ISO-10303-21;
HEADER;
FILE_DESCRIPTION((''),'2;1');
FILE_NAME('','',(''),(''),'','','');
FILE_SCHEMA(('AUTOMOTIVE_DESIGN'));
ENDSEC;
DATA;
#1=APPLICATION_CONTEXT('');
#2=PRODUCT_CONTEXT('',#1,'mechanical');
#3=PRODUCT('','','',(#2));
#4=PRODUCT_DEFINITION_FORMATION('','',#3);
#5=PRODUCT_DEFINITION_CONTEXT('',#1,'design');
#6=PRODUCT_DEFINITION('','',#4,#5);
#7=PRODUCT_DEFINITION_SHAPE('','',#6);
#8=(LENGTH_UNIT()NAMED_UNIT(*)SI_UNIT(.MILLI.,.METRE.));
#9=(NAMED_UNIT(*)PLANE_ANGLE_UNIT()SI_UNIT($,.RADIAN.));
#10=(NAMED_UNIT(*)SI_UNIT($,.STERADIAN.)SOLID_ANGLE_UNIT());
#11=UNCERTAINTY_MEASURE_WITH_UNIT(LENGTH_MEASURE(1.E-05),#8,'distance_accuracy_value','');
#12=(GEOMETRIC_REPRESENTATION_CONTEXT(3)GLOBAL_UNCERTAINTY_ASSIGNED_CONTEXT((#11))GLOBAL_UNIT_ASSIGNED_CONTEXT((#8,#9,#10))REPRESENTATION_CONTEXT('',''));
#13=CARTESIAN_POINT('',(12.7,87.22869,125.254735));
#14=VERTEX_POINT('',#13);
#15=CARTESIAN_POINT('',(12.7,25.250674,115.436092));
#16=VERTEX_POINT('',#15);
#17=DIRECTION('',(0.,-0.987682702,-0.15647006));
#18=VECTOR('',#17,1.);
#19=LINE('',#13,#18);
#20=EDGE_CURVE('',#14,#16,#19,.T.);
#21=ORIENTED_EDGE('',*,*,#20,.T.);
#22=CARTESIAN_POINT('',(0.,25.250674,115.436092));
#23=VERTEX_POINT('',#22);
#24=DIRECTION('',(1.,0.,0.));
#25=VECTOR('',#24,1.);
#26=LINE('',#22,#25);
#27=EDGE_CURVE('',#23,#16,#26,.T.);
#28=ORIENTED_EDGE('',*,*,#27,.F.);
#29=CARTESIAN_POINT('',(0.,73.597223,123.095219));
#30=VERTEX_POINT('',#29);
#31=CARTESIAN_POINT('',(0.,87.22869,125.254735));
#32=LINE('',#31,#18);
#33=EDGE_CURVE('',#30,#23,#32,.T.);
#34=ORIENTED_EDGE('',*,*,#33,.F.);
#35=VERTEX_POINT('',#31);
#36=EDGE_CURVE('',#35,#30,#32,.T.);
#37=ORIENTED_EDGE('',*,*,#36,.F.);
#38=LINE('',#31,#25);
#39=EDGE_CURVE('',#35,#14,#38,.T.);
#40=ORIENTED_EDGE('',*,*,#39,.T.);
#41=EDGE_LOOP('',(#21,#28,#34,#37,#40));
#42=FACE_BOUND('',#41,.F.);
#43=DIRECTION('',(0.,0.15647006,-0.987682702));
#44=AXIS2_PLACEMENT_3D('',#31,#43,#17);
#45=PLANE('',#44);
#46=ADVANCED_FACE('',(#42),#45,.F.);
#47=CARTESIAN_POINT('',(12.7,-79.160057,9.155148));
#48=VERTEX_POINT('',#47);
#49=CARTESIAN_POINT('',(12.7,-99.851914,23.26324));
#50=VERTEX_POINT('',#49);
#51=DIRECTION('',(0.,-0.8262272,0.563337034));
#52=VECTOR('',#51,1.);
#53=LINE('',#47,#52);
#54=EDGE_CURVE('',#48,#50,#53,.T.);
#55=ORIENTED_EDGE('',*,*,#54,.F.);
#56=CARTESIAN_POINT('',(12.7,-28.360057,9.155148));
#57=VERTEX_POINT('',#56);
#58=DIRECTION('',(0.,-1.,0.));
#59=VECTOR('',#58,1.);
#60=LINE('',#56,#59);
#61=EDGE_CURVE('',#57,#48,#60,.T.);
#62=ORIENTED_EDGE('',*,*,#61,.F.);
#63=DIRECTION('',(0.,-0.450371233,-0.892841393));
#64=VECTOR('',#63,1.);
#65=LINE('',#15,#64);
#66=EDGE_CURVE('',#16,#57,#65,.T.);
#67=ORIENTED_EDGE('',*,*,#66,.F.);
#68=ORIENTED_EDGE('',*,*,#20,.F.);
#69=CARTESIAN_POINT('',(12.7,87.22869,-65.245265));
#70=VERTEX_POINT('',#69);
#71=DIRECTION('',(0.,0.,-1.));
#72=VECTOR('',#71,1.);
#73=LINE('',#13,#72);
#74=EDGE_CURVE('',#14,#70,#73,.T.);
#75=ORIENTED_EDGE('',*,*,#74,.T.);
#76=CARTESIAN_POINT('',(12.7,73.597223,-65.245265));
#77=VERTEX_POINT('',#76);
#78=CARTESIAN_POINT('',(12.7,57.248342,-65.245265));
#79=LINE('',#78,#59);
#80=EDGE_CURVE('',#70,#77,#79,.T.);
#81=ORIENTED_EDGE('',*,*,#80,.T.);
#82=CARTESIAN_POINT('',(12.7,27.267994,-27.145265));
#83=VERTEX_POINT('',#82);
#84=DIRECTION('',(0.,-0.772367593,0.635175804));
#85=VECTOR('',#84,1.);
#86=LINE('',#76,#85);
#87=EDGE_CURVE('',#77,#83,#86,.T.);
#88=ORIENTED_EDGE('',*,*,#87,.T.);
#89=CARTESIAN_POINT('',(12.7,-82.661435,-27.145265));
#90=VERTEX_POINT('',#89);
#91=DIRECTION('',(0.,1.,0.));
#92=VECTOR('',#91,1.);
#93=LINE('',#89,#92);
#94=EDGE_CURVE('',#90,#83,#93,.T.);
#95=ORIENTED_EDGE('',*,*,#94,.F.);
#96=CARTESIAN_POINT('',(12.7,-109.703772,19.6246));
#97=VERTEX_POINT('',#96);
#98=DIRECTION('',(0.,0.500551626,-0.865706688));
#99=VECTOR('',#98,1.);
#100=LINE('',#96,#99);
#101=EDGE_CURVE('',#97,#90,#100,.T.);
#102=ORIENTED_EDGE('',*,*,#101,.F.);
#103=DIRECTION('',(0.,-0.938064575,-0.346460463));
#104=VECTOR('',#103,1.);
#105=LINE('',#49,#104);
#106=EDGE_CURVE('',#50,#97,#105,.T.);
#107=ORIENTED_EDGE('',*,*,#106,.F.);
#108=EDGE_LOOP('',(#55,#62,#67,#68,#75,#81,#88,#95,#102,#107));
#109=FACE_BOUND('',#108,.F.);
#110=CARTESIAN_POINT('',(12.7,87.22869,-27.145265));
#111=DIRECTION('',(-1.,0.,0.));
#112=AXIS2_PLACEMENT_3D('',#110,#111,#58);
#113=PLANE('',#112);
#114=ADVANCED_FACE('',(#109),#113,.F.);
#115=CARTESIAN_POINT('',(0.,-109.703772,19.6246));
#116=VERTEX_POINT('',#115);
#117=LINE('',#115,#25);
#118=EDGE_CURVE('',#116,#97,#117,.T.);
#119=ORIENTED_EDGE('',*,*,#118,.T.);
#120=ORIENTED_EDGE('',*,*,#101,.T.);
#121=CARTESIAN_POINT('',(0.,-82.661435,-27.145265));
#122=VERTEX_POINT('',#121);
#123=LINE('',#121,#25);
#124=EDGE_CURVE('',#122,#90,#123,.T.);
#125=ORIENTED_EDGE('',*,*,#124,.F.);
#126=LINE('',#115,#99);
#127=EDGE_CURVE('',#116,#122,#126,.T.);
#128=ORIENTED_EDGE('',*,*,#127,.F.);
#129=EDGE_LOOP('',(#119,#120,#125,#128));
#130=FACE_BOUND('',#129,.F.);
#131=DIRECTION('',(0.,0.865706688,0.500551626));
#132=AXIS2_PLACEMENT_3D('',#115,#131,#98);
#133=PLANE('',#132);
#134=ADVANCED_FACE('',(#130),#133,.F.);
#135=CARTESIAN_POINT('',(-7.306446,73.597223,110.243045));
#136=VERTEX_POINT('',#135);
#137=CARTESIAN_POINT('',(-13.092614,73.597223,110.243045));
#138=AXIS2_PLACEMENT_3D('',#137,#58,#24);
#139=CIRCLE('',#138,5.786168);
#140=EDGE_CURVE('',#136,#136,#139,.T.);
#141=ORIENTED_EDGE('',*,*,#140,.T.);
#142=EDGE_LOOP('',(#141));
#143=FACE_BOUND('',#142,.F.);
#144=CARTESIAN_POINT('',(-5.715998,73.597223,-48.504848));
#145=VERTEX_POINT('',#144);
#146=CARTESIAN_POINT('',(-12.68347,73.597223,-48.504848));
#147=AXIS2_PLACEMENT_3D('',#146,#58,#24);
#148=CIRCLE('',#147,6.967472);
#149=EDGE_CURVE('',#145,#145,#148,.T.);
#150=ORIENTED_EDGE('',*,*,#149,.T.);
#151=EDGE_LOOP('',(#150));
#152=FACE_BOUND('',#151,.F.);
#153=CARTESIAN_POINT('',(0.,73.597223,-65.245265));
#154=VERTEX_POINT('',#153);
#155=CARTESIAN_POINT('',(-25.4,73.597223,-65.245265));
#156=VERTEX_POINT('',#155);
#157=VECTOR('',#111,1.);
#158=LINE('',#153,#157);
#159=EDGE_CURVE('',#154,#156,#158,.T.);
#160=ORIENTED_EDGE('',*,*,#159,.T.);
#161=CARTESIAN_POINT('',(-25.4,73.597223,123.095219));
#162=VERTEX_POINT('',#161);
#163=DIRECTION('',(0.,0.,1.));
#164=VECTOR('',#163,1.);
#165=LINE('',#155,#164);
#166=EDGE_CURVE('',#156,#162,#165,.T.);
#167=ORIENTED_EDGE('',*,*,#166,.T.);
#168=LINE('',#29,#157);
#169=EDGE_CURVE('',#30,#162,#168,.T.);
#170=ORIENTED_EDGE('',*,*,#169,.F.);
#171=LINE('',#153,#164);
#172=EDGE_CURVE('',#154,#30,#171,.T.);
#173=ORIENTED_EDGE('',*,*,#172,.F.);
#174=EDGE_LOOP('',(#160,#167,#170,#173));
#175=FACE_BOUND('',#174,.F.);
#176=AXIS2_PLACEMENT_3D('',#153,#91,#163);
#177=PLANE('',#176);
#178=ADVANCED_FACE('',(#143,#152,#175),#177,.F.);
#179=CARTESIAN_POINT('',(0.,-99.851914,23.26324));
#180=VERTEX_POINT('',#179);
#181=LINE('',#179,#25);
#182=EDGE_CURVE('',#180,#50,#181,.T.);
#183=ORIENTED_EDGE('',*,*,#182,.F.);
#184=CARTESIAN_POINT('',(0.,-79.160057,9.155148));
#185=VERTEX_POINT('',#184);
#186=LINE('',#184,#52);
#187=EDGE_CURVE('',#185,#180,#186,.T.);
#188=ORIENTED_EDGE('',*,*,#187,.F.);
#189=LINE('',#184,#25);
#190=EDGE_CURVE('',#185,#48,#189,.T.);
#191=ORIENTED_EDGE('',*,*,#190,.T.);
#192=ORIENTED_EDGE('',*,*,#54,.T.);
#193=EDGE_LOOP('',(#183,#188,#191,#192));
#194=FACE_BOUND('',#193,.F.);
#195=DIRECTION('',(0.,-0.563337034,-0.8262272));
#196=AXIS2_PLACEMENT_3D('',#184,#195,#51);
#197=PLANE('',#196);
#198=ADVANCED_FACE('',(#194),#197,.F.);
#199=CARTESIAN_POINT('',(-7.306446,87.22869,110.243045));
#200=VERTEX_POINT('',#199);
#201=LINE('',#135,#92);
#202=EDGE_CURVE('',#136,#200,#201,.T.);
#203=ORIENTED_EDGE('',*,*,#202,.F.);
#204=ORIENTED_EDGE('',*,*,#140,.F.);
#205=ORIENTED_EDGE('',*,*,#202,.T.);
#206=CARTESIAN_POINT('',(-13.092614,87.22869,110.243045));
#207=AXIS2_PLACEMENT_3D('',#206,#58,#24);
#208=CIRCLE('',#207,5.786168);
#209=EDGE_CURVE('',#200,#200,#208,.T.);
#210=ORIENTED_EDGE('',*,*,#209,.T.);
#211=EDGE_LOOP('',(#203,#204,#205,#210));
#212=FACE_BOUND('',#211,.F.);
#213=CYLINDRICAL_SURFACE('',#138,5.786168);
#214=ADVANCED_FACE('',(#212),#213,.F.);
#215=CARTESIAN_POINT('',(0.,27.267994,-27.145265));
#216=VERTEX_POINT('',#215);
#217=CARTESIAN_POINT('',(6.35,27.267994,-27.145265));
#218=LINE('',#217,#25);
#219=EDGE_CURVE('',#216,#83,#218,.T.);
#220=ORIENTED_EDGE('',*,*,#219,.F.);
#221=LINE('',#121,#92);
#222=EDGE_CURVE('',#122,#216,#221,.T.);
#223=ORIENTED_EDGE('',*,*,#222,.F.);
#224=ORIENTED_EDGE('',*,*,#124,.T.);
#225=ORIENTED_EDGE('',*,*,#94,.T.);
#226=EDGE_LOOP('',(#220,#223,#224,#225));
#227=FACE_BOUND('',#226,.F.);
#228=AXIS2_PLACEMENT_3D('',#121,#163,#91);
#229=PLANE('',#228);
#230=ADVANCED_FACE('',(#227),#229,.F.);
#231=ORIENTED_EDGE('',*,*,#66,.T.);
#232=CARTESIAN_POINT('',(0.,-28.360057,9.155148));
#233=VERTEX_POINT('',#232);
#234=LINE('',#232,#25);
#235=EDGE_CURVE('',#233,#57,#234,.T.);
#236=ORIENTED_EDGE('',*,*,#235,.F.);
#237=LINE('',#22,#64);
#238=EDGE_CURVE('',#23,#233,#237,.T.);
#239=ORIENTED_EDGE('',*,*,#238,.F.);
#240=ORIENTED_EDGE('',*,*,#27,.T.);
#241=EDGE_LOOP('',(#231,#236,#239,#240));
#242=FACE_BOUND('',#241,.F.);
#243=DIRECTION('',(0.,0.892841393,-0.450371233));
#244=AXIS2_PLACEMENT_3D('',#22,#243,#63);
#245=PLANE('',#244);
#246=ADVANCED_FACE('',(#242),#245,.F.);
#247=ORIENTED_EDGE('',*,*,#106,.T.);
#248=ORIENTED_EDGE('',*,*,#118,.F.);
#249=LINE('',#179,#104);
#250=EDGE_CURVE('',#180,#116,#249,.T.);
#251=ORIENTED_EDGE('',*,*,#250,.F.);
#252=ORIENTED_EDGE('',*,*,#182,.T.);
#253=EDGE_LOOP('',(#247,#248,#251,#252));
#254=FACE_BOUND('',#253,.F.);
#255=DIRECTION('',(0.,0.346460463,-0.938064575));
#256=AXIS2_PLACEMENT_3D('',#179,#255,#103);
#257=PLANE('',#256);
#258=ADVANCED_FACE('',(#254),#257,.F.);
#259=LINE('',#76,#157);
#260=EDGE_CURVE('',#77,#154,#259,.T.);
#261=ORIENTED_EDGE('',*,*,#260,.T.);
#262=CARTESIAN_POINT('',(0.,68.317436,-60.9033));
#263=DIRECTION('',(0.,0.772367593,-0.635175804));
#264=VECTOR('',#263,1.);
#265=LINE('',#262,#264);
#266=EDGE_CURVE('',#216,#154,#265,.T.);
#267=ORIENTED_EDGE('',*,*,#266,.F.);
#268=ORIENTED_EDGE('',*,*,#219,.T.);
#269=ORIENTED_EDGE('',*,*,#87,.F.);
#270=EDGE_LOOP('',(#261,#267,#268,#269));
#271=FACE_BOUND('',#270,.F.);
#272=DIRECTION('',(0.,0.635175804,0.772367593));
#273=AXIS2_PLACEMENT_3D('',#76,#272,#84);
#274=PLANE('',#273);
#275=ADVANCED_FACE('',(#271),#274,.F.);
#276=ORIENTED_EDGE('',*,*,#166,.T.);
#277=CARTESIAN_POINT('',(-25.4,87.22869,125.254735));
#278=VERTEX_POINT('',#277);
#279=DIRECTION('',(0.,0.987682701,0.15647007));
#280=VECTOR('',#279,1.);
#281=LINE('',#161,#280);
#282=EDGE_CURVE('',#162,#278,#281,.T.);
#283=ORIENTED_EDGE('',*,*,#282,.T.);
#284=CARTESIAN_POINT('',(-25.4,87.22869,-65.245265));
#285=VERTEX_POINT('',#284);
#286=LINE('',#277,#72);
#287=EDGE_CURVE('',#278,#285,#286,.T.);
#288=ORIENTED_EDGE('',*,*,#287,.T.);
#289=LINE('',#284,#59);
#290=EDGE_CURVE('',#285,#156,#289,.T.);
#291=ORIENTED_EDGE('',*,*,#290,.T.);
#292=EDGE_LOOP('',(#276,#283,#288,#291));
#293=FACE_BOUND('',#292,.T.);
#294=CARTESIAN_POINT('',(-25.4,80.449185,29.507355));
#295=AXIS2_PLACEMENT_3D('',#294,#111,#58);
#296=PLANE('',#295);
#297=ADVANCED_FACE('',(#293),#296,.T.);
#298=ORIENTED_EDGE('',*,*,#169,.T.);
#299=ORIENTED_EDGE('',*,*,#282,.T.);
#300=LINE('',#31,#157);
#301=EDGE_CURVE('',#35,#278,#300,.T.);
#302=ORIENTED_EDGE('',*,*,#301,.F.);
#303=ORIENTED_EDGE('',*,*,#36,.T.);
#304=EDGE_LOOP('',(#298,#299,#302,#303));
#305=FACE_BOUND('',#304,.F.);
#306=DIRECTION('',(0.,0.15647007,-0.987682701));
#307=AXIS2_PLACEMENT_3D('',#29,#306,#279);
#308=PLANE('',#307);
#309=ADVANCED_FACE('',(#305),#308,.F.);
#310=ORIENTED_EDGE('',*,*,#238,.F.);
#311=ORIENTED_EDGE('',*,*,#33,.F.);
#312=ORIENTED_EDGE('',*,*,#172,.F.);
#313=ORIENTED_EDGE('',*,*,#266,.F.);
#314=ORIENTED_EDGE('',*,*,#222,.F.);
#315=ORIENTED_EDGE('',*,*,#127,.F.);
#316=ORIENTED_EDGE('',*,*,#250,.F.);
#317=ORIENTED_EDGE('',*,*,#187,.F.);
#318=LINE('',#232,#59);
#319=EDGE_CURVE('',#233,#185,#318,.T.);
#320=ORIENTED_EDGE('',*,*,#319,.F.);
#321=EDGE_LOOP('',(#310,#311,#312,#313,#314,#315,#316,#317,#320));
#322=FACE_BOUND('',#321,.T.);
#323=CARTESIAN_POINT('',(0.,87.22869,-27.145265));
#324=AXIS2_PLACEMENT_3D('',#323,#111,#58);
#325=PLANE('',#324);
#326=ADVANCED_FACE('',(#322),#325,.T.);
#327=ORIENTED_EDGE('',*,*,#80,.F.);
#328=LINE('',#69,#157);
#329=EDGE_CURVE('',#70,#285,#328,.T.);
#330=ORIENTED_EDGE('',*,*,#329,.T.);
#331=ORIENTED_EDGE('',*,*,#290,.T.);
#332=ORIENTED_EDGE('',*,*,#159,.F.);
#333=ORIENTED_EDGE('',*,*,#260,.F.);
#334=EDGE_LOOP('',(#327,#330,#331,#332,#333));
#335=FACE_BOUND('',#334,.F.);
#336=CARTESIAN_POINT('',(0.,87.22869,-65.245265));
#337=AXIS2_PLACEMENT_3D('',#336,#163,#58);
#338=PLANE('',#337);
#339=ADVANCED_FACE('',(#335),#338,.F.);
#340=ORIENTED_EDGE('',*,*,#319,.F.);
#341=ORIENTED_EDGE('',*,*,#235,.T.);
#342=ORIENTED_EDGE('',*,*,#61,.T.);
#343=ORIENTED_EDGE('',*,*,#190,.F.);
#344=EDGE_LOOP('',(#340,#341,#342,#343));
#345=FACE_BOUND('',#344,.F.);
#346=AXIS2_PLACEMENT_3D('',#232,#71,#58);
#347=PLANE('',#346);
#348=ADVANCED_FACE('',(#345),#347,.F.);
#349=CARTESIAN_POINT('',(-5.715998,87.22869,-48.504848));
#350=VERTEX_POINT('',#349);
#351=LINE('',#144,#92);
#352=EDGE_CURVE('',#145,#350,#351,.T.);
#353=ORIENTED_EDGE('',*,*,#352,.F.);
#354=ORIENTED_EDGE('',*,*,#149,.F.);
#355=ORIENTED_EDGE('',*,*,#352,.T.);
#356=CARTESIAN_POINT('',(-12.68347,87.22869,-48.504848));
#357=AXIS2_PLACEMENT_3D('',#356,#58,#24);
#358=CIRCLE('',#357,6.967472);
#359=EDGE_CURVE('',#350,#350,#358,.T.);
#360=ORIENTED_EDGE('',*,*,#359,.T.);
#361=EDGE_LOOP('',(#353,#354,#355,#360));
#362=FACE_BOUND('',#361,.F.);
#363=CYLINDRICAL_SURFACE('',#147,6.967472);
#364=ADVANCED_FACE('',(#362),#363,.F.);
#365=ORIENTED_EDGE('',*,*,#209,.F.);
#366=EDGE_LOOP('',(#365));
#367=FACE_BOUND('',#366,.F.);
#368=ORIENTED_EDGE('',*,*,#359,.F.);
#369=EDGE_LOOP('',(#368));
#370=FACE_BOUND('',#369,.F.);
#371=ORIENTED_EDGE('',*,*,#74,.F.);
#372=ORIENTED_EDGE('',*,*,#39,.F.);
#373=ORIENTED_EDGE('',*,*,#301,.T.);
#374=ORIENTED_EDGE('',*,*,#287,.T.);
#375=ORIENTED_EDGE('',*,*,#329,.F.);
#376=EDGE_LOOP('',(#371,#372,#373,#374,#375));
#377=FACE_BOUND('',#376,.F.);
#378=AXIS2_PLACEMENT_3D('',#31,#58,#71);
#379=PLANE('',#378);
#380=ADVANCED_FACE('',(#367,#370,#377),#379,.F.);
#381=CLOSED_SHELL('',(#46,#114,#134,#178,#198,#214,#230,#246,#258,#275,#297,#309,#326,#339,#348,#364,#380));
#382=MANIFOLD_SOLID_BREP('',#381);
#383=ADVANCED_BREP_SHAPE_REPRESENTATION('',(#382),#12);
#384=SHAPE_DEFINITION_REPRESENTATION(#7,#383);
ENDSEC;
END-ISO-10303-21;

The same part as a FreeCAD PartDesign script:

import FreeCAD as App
import Part
import Sketcher
from FreeCAD import Vector
Q = App.Units.Quantity

doc = App.newDocument("Part")
body = doc.addObject("PartDesign::Body", "Body")

# Sketch on YZ plane
sketch1 = doc.addObject("Sketcher::SketchObject", "Sketch")
body.addObject(sketch1)
sketch1.AttachmentSupport = (doc.YZ_Plane, [""])
sketch1.MapMode = "FlatFace"
sketch1.addGeometry(Part.LineSegment(Vector(-109.703772, 19.6246, 0), Vector(-82.661435, -27.145265, 0)), False)
sketch1.addGeometry(Part.LineSegment(Vector(-82.661435, -27.145265, 0), Vector(87.22869, -27.145265, 0)), False)
sketch1.addGeometry(Part.LineSegment(Vector(87.22869, -27.145265, 0), Vector(87.22869, 125.254735, 0)), False)
sketch1.addGeometry(Part.LineSegment(Vector(87.22869, 125.254735, 0), Vector(25.250674, 115.436092, 0)), False)
sketch1.addGeometry(Part.LineSegment(Vector(25.250674, 115.436092, 0), Vector(-28.360057, 9.155148, 0)), False)
sketch1.addGeometry(Part.LineSegment(Vector(-28.360057, 9.155148, 0), Vector(-79.160057, 9.155148, 0)), False)
sketch1.addGeometry(Part.LineSegment(Vector(-79.160057, 9.155148, 0), Vector(-99.851914, 23.26324, 0)), False)
sketch1.addGeometry(Part.LineSegment(Vector(-99.851914, 23.26324, 0), Vector(-109.703772, 19.6246, 0)), False)
sketch1.addConstraint(Sketcher.Constraint("Coincident", 0, 2, 1, 1))
sketch1.addConstraint(Sketcher.Constraint("Coincident", 1, 2, 2, 1))
sketch1.addConstraint(Sketcher.Constraint("Coincident", 2, 2, 3, 1))
sketch1.addConstraint(Sketcher.Constraint("Coincident", 3, 2, 4, 1))
sketch1.addConstraint(Sketcher.Constraint("Coincident", 4, 2, 5, 1))
sketch1.addConstraint(Sketcher.Constraint("Coincident", 5, 2, 6, 1))
sketch1.addConstraint(Sketcher.Constraint("Coincident", 6, 2, 7, 1))
sketch1.addConstraint(Sketcher.Constraint("Coincident", 7, 2, 0, 1))
sketch1.addConstraint(Sketcher.Constraint("Horizontal", 1))
sketch1.addConstraint(Sketcher.Constraint("Vertical", 2))
sketch1.addConstraint(Sketcher.Constraint("Horizontal", 5))
sketch1.addConstraint(Sketcher.Constraint("DistanceX", 5, 2, 5, 1, Q("2 in")))
sketch1.addConstraint(Sketcher.Constraint("DistanceY", 2, 1, 2, 2, Q("6 in")))
sketch1.addConstraint(Sketcher.Constraint("DistanceY", -1, 1, 7, 2, 19.6246))
sketch1.addConstraint(Sketcher.Constraint("Distance", 0, 54.025071))
sketch1.addConstraint(Sketcher.Constraint("DistanceX", 1, 1, 1, 2, 169.890125))
sketch1.addConstraint(Sketcher.Constraint("DistanceX", -1, 1, 1, 2, 87.22869))
sketch1.addConstraint(Sketcher.Constraint("DistanceY", -1, 1, 6, 2, 23.26324))
sketch1.addConstraint(Sketcher.Constraint("DistanceX", 7, 2, -1, 1, 109.703772))
sketch1.addConstraint(Sketcher.Constraint("DistanceX", 0, 2, 3, 2, 107.912109))
sketch1.addConstraint(Sketcher.Constraint("DistanceX", 4, 2, 3, 2, 53.610731))
sketch1.addConstraint(Sketcher.Constraint("DistanceY", 5, 2, 6, 2, 14.108092))
sketch1.addConstraint(Sketcher.Constraint("DistanceX", 6, 2, 0, 2, 17.190479))
sketch1.addConstraint(Sketcher.Constraint("DistanceY", 7, 2, 3, 2, 95.811492))
pad1 = doc.addObject("PartDesign::Pad", "Pad")
body.addObject(pad1)
pad1.Profile = sketch1
pad1.Length = Q("0.5 in")

# Sketch on XY plane
sketch2 = doc.addObject("Sketcher::SketchObject", "Sketch001")
body.addObject(sketch2)
sketch2.AttachmentSupport = (doc.XY_Plane, [""])
sketch2.MapMode = "FlatFace"
sketch2.AttachmentOffset = App.Placement(Vector(0, 0, -27.145265), App.Rotation())
sketch2.addGeometry(Part.LineSegment(Vector(0, 27.267994, 0), Vector(0, 87.22869, 0)), False)
sketch2.addGeometry(Part.LineSegment(Vector(0, 87.22869, 0), Vector(12.7, 87.22869, 0)), False)
sketch2.addGeometry(Part.LineSegment(Vector(12.7, 87.22869, 0), Vector(12.7, 27.267994, 0)), False)
sketch2.addGeometry(Part.LineSegment(Vector(12.7, 27.267994, 0), Vector(0, 27.267994, 0)), False)
sketch2.addConstraint(Sketcher.Constraint("Coincident", 0, 2, 1, 1))
sketch2.addConstraint(Sketcher.Constraint("Coincident", 1, 2, 2, 1))
sketch2.addConstraint(Sketcher.Constraint("Coincident", 2, 2, 3, 1))
sketch2.addConstraint(Sketcher.Constraint("Coincident", 3, 2, 0, 1))
sketch2.addConstraint(Sketcher.Constraint("Vertical", 0))
sketch2.addConstraint(Sketcher.Constraint("Horizontal", 1))
sketch2.addConstraint(Sketcher.Constraint("Vertical", 2))
sketch2.addConstraint(Sketcher.Constraint("Horizontal", 3))
sketch2.addConstraint(Sketcher.Constraint("PointOnObject", 0, 2, -2))
sketch2.addConstraint(Sketcher.Constraint("DistanceX", 1, 1, 1, 2, Q("0.5 in")))
sketch2.addConstraint(Sketcher.Constraint("DistanceY", 0, 1, 0, 2, 59.960696))
sketch2.addConstraint(Sketcher.Constraint("DistanceY", -1, 1, 0, 2, 87.22869))
pad2 = doc.addObject("PartDesign::Pad", "Pad001")
body.addObject(pad2)
pad2.Profile = sketch2
pad2.Length = Q("1.5 in")
pad2.Reversed = True

# Sketch on YZ plane
sketch3 = doc.addObject("Sketcher::SketchObject", "Sketch002")
body.addObject(sketch3)
sketch3.AttachmentSupport = (doc.YZ_Plane, [""])
sketch3.MapMode = "FlatFace"
sketch3.AttachmentOffset = App.Placement(Vector(0, 0, 0.5 * 25.4), App.Rotation())
sketch3.addGeometry(Part.LineSegment(Vector(73.597223, -65.245265, 0), Vector(27.267994, -27.145265, 0)), False)
sketch3.addGeometry(Part.LineSegment(Vector(27.267994, -27.145265, 0), Vector(27.267994, -65.245265, 0)), False)
sketch3.addGeometry(Part.LineSegment(Vector(27.267994, -65.245265, 0), Vector(73.597223, -65.245265, 0)), False)
sketch3.addConstraint(Sketcher.Constraint("Coincident", 0, 2, 1, 1))
sketch3.addConstraint(Sketcher.Constraint("Coincident", 1, 2, 2, 1))
sketch3.addConstraint(Sketcher.Constraint("Coincident", 2, 2, 0, 1))
sketch3.addConstraint(Sketcher.Constraint("Vertical", 1))
sketch3.addConstraint(Sketcher.Constraint("Horizontal", 2))
sketch3.addConstraint(Sketcher.Constraint("DistanceY", 1, 2, 1, 1, Q("1.5 in")))
sketch3.addConstraint(Sketcher.Constraint("DistanceX", 2, 1, 2, 2, 46.329229))
sketch3.addConstraint(Sketcher.Constraint("DistanceX", -1, 1, 0, 2, 27.267994))
sketch3.addConstraint(Sketcher.Constraint("DistanceY", 0, 2, -1, 1, 27.145265))
pocket1 = doc.addObject("PartDesign::Pocket", "Pocket")
body.addObject(pocket1)
pocket1.Profile = sketch3
pocket1.Length = Q("1 in")

# Sketch on YZ plane
sketch4 = doc.addObject("Sketcher::SketchObject", "Sketch003")
body.addObject(sketch4)
sketch4.AttachmentSupport = (doc.YZ_Plane, [""])
sketch4.MapMode = "FlatFace"
sketch4.addGeometry(Part.LineSegment(Vector(87.22869, 125.254735, 0), Vector(87.22869, -65.245265, 0)), False)
sketch4.addGeometry(Part.LineSegment(Vector(87.22869, -65.245265, 0), Vector(73.597223, -65.245265, 0)), False)
sketch4.addGeometry(Part.LineSegment(Vector(73.597223, -65.245265, 0), Vector(73.597223, 123.095219, 0)), False)
sketch4.addGeometry(Part.LineSegment(Vector(73.597223, 123.095219, 0), Vector(87.22869, 125.254735, 0)), False)
sketch4.addConstraint(Sketcher.Constraint("Coincident", 0, 2, 1, 1))
sketch4.addConstraint(Sketcher.Constraint("Coincident", 1, 2, 2, 1))
sketch4.addConstraint(Sketcher.Constraint("Coincident", 2, 2, 3, 1))
sketch4.addConstraint(Sketcher.Constraint("Coincident", 3, 2, 0, 1))
sketch4.addConstraint(Sketcher.Constraint("Vertical", 0))
sketch4.addConstraint(Sketcher.Constraint("Horizontal", 1))
sketch4.addConstraint(Sketcher.Constraint("Vertical", 2))
sketch4.addConstraint(Sketcher.Constraint("DistanceY", 0, 2, 0, 1, Q("7.5 in")))
sketch4.addConstraint(Sketcher.Constraint("DistanceX", 1, 2, 1, 1, 13.631467))
sketch4.addConstraint(Sketcher.Constraint("DistanceY", 2, 1, 2, 2, 188.340484))
sketch4.addConstraint(Sketcher.Constraint("DistanceX", -1, 1, 0, 2, 87.22869))
sketch4.addConstraint(Sketcher.Constraint("DistanceY", -1, 1, 2, 2, 123.095219))
pad3 = doc.addObject("PartDesign::Pad", "Pad002")
body.addObject(pad3)
pad3.Profile = sketch4
pad3.Length = Q("1 in")
pad3.Reversed = True

# Sketch on XZ plane
sketch5 = doc.addObject("Sketcher::SketchObject", "Sketch004")
body.addObject(sketch5)
sketch5.AttachmentSupport = (doc.XZ_Plane, [""])
sketch5.MapMode = "FlatFace"
sketch5.AttachmentOffset = App.Placement(Vector(0, 0, -73.597223), App.Rotation())
sketch5.addGeometry(Part.Circle(Vector(-13.092614, 110.243045, 0), Vector(0, 0, 1), 5.786168), False)
sketch5.addGeometry(Part.Circle(Vector(-12.68347, -48.504848, 0), Vector(0, 0, 1), 6.967472), False)
sketch5.addConstraint(Sketcher.Constraint("Diameter", 0, 11.572336))
sketch5.addConstraint(Sketcher.Constraint("Diameter", 1, 13.934944))
sketch5.addConstraint(Sketcher.Constraint("DistanceX", 1, 3, -1, 1, 12.68347))
sketch5.addConstraint(Sketcher.Constraint("DistanceY", 1, 3, -1, 1, 48.504848))
sketch5.addConstraint(Sketcher.Constraint("DistanceX", 0, 3, -1, 1, 13.092614))
sketch5.addConstraint(Sketcher.Constraint("DistanceY", -1, 1, 0, 3, 110.243045))
pocket2 = doc.addObject("PartDesign::Pocket", "Pocket001")
body.addObject(pocket2)
pocket2.Profile = sketch5
pocket2.Length = Q("1 in")

doc.recompute()
